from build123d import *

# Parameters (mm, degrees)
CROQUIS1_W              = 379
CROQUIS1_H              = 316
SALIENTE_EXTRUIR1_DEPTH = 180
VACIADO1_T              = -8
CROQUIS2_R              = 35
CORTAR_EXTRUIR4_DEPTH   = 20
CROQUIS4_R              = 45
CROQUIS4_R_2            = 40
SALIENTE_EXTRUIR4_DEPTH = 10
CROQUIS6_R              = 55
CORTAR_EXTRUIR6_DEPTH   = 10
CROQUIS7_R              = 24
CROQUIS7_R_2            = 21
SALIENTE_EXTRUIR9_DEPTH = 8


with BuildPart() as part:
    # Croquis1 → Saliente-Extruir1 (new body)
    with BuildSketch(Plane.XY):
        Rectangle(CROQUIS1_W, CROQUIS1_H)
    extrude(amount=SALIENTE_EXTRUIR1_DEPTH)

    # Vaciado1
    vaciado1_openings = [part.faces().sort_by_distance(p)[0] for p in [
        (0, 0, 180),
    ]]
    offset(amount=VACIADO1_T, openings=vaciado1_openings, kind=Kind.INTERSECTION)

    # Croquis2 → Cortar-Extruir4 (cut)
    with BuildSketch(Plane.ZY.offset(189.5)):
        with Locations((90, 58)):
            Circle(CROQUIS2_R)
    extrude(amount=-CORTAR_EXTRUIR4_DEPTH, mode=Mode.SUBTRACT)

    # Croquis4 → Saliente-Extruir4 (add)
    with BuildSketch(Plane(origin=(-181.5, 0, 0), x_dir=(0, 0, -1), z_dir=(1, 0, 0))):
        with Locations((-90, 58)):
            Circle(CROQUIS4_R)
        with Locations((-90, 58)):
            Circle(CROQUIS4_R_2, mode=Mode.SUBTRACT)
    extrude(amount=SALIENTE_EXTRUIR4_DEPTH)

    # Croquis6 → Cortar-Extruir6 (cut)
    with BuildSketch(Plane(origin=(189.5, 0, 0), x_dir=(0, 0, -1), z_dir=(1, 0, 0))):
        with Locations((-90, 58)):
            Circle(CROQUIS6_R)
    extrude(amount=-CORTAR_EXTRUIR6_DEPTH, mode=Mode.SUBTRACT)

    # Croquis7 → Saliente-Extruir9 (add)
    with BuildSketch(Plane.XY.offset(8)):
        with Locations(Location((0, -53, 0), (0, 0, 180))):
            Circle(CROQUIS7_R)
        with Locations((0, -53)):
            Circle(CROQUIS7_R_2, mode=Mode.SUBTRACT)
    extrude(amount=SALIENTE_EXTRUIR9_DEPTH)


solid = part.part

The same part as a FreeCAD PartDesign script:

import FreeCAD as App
import Part
import Sketcher


def faces_at(feature, points):
    """Names of the faces that lie closest to the given points."""
    faces = feature.Shape.Faces
    near = lambda p: min(range(len(faces)), key=lambda i: faces[i].distToShape(Part.Vertex(*p))[0])
    return sorted({f"Face{near(p) + 1}" for p in points})

doc = App.newDocument("Part")
body = doc.addObject("PartDesign::Body", "Body")

# Sketch on XY plane
sketch1 = doc.addObject("Sketcher::SketchObject", "Sketch")
body.addObject(sketch1)
sketch1.AttachmentSupport = (doc.XY_Plane, [""])
sketch1.MapMode = "FlatFace"
sketch1.addGeometry(Part.LineSegment(App.Vector(-190, 158, 0), App.Vector(-190, -158, 0)), False)
sketch1.addGeometry(Part.LineSegment(App.Vector(-190, -158, 0), App.Vector(190, -158, 0)), False)
sketch1.addGeometry(Part.LineSegment(App.Vector(190, -158, 0), App.Vector(190, 158, 0)), False)
sketch1.addGeometry(Part.LineSegment(App.Vector(190, 158, 0), App.Vector(-190, 158, 0)), False)
sketch1.addConstraint(Sketcher.Constraint("Coincident", 0, 2, 1, 1))
sketch1.addConstraint(Sketcher.Constraint("Coincident", 1, 2, 2, 1))
sketch1.addConstraint(Sketcher.Constraint("Coincident", 2, 2, 3, 1))
sketch1.addConstraint(Sketcher.Constraint("Coincident", 3, 2, 0, 1))
sketch1.addConstraint(Sketcher.Constraint("Vertical", 0))
sketch1.addConstraint(Sketcher.Constraint("Horizontal", 1))
sketch1.addConstraint(Sketcher.Constraint("Vertical", 2))
sketch1.addConstraint(Sketcher.Constraint("Horizontal", 3))
sketch1.addConstraint(Sketcher.Constraint("Symmetric", 0, 2, 2, 2, -1, 1))
sketch1.addConstraint(Sketcher.Constraint("DistanceX", 1, 1, 1, 2, 379.0))
sketch1.addConstraint(Sketcher.Constraint("DistanceY", 0, 2, 0, 1, 316.0))
pad1 = doc.addObject("PartDesign::Pad", "Pad")
body.addObject(pad1)
pad1.Profile = sketch1
pad1.Length = 180
doc.recompute()

thickness = doc.addObject("PartDesign::Thickness", "Thickness")
body.addObject(thickness)
thickness.Base = (pad1, faces_at(pad1, [(0, 0, 180)]))
thickness.Value = 8
thickness.Reversed = True
thickness.Join = "Intersection"

# Sketch on YZ plane
sketch2 = doc.addObject("Sketcher::SketchObject", "Sketch001")
body.addObject(sketch2)
sketch2.AttachmentSupport = (doc.YZ_Plane, [""])
sketch2.MapMode = "FlatFace"
sketch2.AttachmentOffset = App.Placement(App.Vector(0, 0, -189.5), App.Rotation())
sketch2.addGeometry(Part.Circle(App.Vector(58, 90, 0), App.Vector(0, 0, 1), 35), False)
sketch2.addConstraint(Sketcher.Constraint("Diameter", 0, 70.0))
sketch2.addConstraint(Sketcher.Constraint("DistanceX", -1, 1, 0, 3, 58.0))
sketch2.addConstraint(Sketcher.Constraint("DistanceY", -1, 1, 0, 3, 90.0))
pocket1 = doc.addObject("PartDesign::Pocket", "Pocket")
body.addObject(pocket1)
pocket1.Profile = sketch2
pocket1.Length = 20
pocket1.Reversed = True

# Sketch on YZ plane
sketch3 = doc.addObject("Sketcher::SketchObject", "Sketch002")
body.addObject(sketch3)
sketch3.AttachmentSupport = (doc.YZ_Plane, [""])
sketch3.MapMode = "FlatFace"
sketch3.AttachmentOffset = App.Placement(App.Vector(0, 0, -181.5), App.Rotation())
sketch3.addGeometry(Part.Circle(App.Vector(58, 90, 0), App.Vector(0, 0, 1), 45), False)
sketch3.addGeometry(Part.Circle(App.Vector(58, 90, 0), App.Vector(0, 0, 1), 40), False)
sketch3.addConstraint(Sketcher.Constraint("Coincident", 1, 3, 0, 3))
sketch3.addConstraint(Sketcher.Constraint("Diameter", 0, 90.0))
sketch3.addConstraint(Sketcher.Constraint("Diameter", 1, 80.0))
sketch3.addConstraint(Sketcher.Constraint("DistanceX", -1, 1, 0, 3, 58.0))
sketch3.addConstraint(Sketcher.Constraint("DistanceY", -1, 1, 0, 3, 90.0))
pad2 = doc.addObject("PartDesign::Pad", "Pad001")
body.addObject(pad2)
pad2.Profile = sketch3
pad2.Length = 10

# Sketch on YZ plane
sketch4 = doc.addObject("Sketcher::SketchObject", "Sketch003")
body.addObject(sketch4)
sketch4.AttachmentSupport = (doc.YZ_Plane, [""])
sketch4.MapMode = "FlatFace"
sketch4.AttachmentOffset = App.Placement(App.Vector(0, 0, 189.5), App.Rotation())
sketch4.addGeometry(Part.Circle(App.Vector(58, 90, 0), App.Vector(0, 0, 1), 55), False)
sketch4.addConstraint(Sketcher.Constraint("Diameter", 0, 110.0))
sketch4.addConstraint(Sketcher.Constraint("DistanceX", -1, 1, 0, 3, 58.0))
sketch4.addConstraint(Sketcher.Constraint("DistanceY", -1, 1, 0, 3, 90.0))
pocket2 = doc.addObject("PartDesign::Pocket", "Pocket001")
body.addObject(pocket2)
pocket2.Profile = sketch4
pocket2.Length = 10

# Sketch on XY plane
sketch5 = doc.addObject("Sketcher::SketchObject", "Sketch004")
body.addObject(sketch5)
sketch5.AttachmentSupport = (doc.XY_Plane, [""])
sketch5.MapMode = "FlatFace"
sketch5.AttachmentOffset = App.Placement(App.Vector(0, 0, 8), App.Rotation())
sketch5.addGeometry(Part.Circle(App.Vector(0, -53, 0), App.Vector(0, 0, 1), 24), False)
sketch5.addGeometry(Part.Circle(App.Vector(0, -53, 0), App.Vector(0, 0, 1), 21), False)
sketch5.addConstraint(Sketcher.Constraint("Coincident", 1, 3, 0, 3))
sketch5.addConstraint(Sketcher.Constraint("PointOnObject", 0, 3, -2))
sketch5.addConstraint(Sketcher.Constraint("Diameter", 0, 48.0))
sketch5.addConstraint(Sketcher.Constraint("Diameter", 1, 42.0))
sketch5.addConstraint(Sketcher.Constraint("DistanceY", 0, 3, -1, 1, 53.0))
pad3 = doc.addObject("PartDesign::Pad", "Pad002")
body.addObject(pad3)
pad3.Profile = sketch5
pad3.Length = 8

doc.recompute()
